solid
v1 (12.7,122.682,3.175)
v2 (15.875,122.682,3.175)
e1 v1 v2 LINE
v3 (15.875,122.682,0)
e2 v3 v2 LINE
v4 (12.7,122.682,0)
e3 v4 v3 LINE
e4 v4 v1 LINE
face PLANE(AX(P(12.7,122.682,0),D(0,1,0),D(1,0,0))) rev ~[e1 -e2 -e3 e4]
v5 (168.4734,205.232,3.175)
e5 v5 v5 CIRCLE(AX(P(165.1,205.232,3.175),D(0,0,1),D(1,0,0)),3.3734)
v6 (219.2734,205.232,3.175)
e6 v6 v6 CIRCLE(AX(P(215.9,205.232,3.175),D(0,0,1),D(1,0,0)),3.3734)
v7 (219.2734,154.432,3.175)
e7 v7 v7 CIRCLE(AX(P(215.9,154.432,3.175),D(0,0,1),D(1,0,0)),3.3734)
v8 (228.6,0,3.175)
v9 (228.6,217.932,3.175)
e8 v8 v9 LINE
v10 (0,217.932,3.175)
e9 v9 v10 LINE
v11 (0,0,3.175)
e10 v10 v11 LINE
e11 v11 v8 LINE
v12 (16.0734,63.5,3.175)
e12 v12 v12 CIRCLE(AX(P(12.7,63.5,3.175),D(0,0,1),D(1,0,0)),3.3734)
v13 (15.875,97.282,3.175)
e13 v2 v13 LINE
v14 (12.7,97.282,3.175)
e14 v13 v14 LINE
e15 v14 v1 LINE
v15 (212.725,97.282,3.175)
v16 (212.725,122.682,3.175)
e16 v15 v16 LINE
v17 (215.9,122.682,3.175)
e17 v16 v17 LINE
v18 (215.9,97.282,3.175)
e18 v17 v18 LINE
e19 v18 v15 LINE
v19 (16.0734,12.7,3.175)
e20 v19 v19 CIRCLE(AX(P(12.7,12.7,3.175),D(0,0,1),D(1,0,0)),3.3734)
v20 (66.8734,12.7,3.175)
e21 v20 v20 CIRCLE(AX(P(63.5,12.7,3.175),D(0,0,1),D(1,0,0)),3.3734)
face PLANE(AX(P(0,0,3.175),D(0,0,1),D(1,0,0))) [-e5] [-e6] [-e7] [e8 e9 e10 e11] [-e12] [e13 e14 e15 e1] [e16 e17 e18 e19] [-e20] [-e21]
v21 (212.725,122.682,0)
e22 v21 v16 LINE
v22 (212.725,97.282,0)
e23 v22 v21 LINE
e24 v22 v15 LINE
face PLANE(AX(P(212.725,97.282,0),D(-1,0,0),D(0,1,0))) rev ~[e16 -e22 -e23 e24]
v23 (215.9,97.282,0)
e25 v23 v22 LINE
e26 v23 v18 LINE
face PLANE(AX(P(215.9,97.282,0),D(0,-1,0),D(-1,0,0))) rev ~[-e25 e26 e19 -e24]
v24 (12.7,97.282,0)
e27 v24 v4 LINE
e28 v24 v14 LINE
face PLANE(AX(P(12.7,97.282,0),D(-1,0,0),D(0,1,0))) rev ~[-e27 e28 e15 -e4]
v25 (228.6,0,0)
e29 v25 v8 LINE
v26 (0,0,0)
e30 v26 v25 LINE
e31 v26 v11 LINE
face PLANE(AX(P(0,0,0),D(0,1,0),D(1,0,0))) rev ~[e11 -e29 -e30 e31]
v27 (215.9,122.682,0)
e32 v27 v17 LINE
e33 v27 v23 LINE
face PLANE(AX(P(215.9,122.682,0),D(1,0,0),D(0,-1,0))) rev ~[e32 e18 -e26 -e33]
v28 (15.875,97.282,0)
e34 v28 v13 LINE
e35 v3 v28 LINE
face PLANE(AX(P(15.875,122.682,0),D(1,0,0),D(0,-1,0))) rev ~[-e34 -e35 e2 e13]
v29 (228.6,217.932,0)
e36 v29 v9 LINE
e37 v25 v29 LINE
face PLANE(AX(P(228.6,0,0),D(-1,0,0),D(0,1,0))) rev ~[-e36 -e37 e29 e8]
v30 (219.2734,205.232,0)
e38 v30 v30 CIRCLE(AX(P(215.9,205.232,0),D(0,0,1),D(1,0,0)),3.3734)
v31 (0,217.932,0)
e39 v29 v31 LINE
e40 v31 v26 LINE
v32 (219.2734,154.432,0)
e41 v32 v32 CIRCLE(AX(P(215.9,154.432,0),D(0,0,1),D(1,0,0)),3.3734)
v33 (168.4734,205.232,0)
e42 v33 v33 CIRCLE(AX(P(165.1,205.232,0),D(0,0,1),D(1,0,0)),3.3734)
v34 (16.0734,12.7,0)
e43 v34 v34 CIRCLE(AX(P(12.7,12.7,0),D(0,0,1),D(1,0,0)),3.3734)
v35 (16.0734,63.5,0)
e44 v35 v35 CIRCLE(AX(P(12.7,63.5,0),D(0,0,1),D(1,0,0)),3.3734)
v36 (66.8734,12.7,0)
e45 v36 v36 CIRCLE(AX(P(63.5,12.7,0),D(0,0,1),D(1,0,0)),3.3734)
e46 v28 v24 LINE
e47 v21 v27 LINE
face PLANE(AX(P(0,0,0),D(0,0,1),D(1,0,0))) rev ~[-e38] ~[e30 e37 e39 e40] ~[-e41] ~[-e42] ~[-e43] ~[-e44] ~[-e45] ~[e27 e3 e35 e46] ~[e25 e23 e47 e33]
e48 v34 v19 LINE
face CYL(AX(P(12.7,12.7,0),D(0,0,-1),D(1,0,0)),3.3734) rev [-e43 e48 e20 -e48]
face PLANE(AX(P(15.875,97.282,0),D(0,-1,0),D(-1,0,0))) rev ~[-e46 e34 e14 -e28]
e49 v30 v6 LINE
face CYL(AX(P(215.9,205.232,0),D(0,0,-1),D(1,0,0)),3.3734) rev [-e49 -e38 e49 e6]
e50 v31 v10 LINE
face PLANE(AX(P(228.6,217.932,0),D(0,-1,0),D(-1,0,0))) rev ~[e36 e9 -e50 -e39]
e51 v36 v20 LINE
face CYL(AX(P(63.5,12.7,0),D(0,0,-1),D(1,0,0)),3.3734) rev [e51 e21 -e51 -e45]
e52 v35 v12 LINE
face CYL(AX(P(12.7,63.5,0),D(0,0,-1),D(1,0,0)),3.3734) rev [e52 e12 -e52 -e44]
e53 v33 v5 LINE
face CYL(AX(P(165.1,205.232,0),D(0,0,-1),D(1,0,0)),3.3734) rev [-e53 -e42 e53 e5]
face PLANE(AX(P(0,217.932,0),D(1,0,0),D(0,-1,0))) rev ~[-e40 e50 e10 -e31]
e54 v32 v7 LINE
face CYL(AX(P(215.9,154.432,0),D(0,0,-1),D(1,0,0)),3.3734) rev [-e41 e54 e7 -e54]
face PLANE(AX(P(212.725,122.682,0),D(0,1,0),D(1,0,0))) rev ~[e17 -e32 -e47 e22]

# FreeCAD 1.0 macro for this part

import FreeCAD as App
import Part
import Sketcher
Q = App.Units.Quantity

doc = App.newDocument("Part")
params = doc.addObject("Spreadsheet::Sheet", "Params")
for row, (alias, value) in enumerate([
    ("sketch1_width", "9 in"),
    ("sketch1_height", "1 in"),
    ("sketch1_diameter", "0.265622 in"),
    ("sketch1_height2", "8.58 in"),
    ("sketch1_width2", "0.125 in"),
    ("pad1_length", "0.125 in"),
], start=1):
    params.set(f"A{row}", alias)
    params.set(f"B{row}", "=" + value)
    params.setAlias(f"B{row}", alias)

body = doc.addObject("PartDesign::Body", "Body")

# Sketch on XY plane
sketch1 = body.newObject("Sketcher::SketchObject", "Sketch")
sketch1.AttachmentSupport = (doc.getObject("XY_Plane"), [""])
sketch1.MapMode = "FlatFace"
sketch1.addGeometry([
    Part.LineSegment(App.Vector(0, 217.9, 0), App.Vector(0, 0, 0)),  # 0
    Part.LineSegment(App.Vector(0, 0, 0), App.Vector(228.6, 0, 0)),  # 1
    Part.LineSegment(App.Vector(228.6, 0, 0), App.Vector(228.6, 217.9, 0)),  # 2
    Part.LineSegment(App.Vector(228.6, 217.9, 0), App.Vector(0, 217.9, 0)),  # 3
    Part.Circle(App.Vector(12.7, 12.7, 0), App.Vector(0, 0, 1), 3.4),  # 4
    Part.Circle(App.Vector(63.5, 12.7, 0), App.Vector(0, 0, 1), 3.4),  # 5
    Part.Circle(App.Vector(12.7, 63.5, 0), App.Vector(0, 0, 1), 3.4),  # 6
    Part.LineSegment(App.Vector(12.7, 97.3, 0), App.Vector(12.7, 122.7, 0)),  # 7
    Part.LineSegment(App.Vector(12.7, 122.7, 0), App.Vector(15.9, 122.7, 0)),  # 8
    Part.LineSegment(App.Vector(15.9, 122.7, 0), App.Vector(15.9, 97.3, 0)),  # 9
    Part.LineSegment(App.Vector(15.9, 97.3, 0), App.Vector(12.7, 97.3, 0)),  # 10
    Part.LineSegment(App.Vector(215.9, 122.7, 0), App.Vector(215.9, 97.3, 0)),  # 11
    Part.LineSegment(App.Vector(215.9, 97.3, 0), App.Vector(212.7, 97.3, 0)),  # 12
    Part.LineSegment(App.Vector(212.7, 97.3, 0), App.Vector(212.7, 122.7, 0)),  # 13
    Part.LineSegment(App.Vector(212.7, 122.7, 0), App.Vector(215.9, 122.7, 0)),  # 14
    Part.Circle(App.Vector(215.9, 154.4, 0), App.Vector(0, 0, 1), 3.4),  # 15
    Part.Circle(App.Vector(165.1, 205.2, 0), App.Vector(0, 0, 1), 3.4),  # 16
    Part.Circle(App.Vector(215.9, 205.2, 0), App.Vector(0, 0, 1), 3.4),  # 17
], False)
sketch1.addConstraint([
    Sketcher.Constraint("Coincident", 0, 2, 1, 1),
    Sketcher.Constraint("Coincident", 1, 2, 2, 1),
    Sketcher.Constraint("Coincident", 2, 2, 3, 1),
    Sketcher.Constraint("Coincident", 3, 2, 0, 1),
    Sketcher.Constraint("Coincident", 7, 2, 8, 1),
    Sketcher.Constraint("Coincident", 8, 2, 9, 1),
    Sketcher.Constraint("Coincident", 9, 2, 10, 1),
    Sketcher.Constraint("Coincident", 10, 2, 7, 1),
    Sketcher.Constraint("Coincident", 11, 2, 12, 1),
    Sketcher.Constraint("Coincident", 12, 2, 13, 1),
    Sketcher.Constraint("Coincident", 13, 2, 14, 1),
    Sketcher.Constraint("Coincident", 14, 2, 11, 1),
    Sketcher.Constraint("Vertical", 0),
    Sketcher.Constraint("Horizontal", 1),
    Sketcher.Constraint("Vertical", 2),
    Sketcher.Constraint("Horizontal", 3),
    Sketcher.Constraint("Vertical", 7),
    Sketcher.Constraint("Horizontal", 8),
    Sketcher.Constraint("Vertical", 9),
    Sketcher.Constraint("Horizontal", 10),
    Sketcher.Constraint("Vertical", 11),
    Sketcher.Constraint("Horizontal", 12),
    Sketcher.Constraint("Vertical", 13),
    Sketcher.Constraint("Horizontal", 14),
    Sketcher.Constraint("Coincident", 0, 2, -1, 1),
    Sketcher.Constraint("Equal", 4, 5),
    Sketcher.Constraint("Equal", 5, 6),
    Sketcher.Constraint("Equal", 6, 15),
    Sketcher.Constraint("Equal", 15, 16),
    Sketcher.Constraint("Equal", 16, 17),
    Sketcher.Constraint("Horizontal", 4, 3, 5, 3),
    Sketcher.Constraint("Horizontal", 16, 3, 17, 3),
    Sketcher.Constraint("Horizontal", 10, 2, 11, 2),
    Sketcher.Constraint("Horizontal", 8, 2, 13, 2),
    Sketcher.Constraint("Vertical", 4, 3, 6, 3),
    Sketcher.Constraint("Vertical", 15, 3, 17, 3),
    Sketcher.Constraint("Vertical", 6, 3, 7, 2),
    Sketcher.Constraint("Vertical", 17, 3, 11, 2),
    Sketcher.Constraint("Equal", 10, 12),
    Sketcher.Constraint("DistanceX", 1, 1, 1, 2, Q("9 in")),
    Sketcher.Constraint("DistanceY", 7, 1, 7, 2, Q("1 in")),
    Sketcher.Constraint("Diameter", 4, Q("0.265622 in")),
    Sketcher.Constraint("DistanceX", 4, 3, 5, 3, Q("2 in")),
    Sketcher.Constraint("DistanceY", 4, 3, 6, 3, Q("2 in")),
    Sketcher.Constraint("DistanceX", 16, 3, 15, 3, Q("2 in")),
    Sketcher.Constraint("DistanceY", 15, 3, 16, 3, Q("2 in")),
    Sketcher.Constraint("DistanceY", 0, 2, 0, 1, Q("8.58 in")),
    Sketcher.Constraint("DistanceX", -1, 1, 4, 3, Q("0.5 in")),
    Sketcher.Constraint("DistanceY", -1, 1, 4, 3, Q("0.5 in")),
    Sketcher.Constraint("DistanceX", 15, 3, 1, 2, Q("0.5 in")),
    Sketcher.Constraint("DistanceY", 17, 3, 2, 2, Q("0.5 in")),
    Sketcher.Constraint("DistanceX", 8, 1, 8, 2, Q("0.125 in")),
    Sketcher.Constraint("DistanceY", 7, 2, 3, 2, Q("3.75 in")),
])
sketch1.setExpression("Constraints[39]", "Params.sketch1_width")
sketch1.setExpression("Constraints[40]", "Params.sketch1_height")
sketch1.setExpression("Constraints[41]", "Params.sketch1_diameter")
sketch1.setExpression("Constraints[46]", "Params.sketch1_height2")
sketch1.setExpression("Constraints[51]", "Params.sketch1_width2")
pad1 = body.newObject("PartDesign::Pad", "Pad")
pad1.Profile = sketch1
pad1.setExpression("Length", "Params.pad1_length")

doc.recompute()
